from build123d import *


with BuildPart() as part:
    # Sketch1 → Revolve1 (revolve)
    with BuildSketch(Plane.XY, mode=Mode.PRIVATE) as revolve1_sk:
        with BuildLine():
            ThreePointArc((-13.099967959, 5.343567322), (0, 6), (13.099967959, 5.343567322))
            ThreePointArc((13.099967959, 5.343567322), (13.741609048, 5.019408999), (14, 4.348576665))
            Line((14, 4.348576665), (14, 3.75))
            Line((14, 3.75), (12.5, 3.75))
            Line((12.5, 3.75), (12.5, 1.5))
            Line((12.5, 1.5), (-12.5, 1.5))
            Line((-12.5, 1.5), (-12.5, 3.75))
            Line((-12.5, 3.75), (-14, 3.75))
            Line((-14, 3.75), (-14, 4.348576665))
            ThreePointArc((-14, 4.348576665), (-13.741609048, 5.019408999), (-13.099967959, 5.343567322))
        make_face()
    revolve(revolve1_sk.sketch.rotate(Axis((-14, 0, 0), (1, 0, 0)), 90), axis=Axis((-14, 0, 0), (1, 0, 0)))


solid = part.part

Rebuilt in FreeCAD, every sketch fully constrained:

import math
import FreeCAD as App
import Part
import Sketcher

V = App.Vector
Q = App.Units.Quantity

doc = App.newDocument("Part")
body = doc.addObject("PartDesign::Body", "Body")

sketch1 = body.newObject("Sketcher::SketchObject", "Sketch")
sketch1.AttachmentSupport = (doc.getObject("XY_Plane"), [""])
sketch1.MapMode = "FlatFace"
sketch1.addGeometry([
    Part.ArcOfCircle(Part.Circle(V(0, -125.041667, 0), V(0, 0, 1), 131.041667), math.radians(84.262675), math.radians(95.737325)),
    Part.ArcOfCircle(Part.Circle(V(-13, 4.348577, 0), V(0, 0, 1), 1), math.radians(95.737325), math.radians(180)),
    Part.LineSegment(V(-14, 4.348577, 0), V(-14, 3.75, 0)),
    Part.LineSegment(V(-14, 3.75, 0), V(-12.5, 3.75, 0)),
    Part.LineSegment(V(-12.5, 3.75, 0), V(-12.5, 1.5, 0)),
    Part.LineSegment(V(-12.5, 1.5, 0), V(12.5, 1.5, 0)),
    Part.LineSegment(V(12.5, 1.5, 0), V(12.5, 3.75, 0)),
    Part.LineSegment(V(12.5, 3.75, 0), V(14, 3.75, 0)),
    Part.LineSegment(V(14, 3.75, 0), V(14, 4.348577, 0)),
    Part.ArcOfCircle(Part.Circle(V(13, 4.348577, 0), V(0, 0, 1), 1), math.radians(0), math.radians(84.262675)),
], False)
sketch1.addConstraint([
    Sketcher.Constraint("Tangent", 0, 2, 1, 1),
    Sketcher.Constraint("Tangent", 1, 2, 2, 1),
    Sketcher.Constraint("Coincident", 2, 2, 3, 1),
    Sketcher.Constraint("Coincident", 3, 2, 4, 1),
    Sketcher.Constraint("Coincident", 4, 2, 5, 1),
    Sketcher.Constraint("Coincident", 5, 2, 6, 1),
    Sketcher.Constraint("Coincident", 6, 2, 7, 1),
    Sketcher.Constraint("Coincident", 7, 2, 8, 1),
    Sketcher.Constraint("Tangent", 8, 2, 9, 1),
    Sketcher.Constraint("Tangent", 9, 2, 0, 1),
    Sketcher.Constraint("Vertical", 2),
    Sketcher.Constraint("Horizontal", 3),
    Sketcher.Constraint("Vertical", 4),
    Sketcher.Constraint("Horizontal", 5),
    Sketcher.Constraint("Vertical", 6),
    Sketcher.Constraint("Horizontal", 7),
    Sketcher.Constraint("Vertical", 8),
    Sketcher.Constraint("Equal", 1, 9),
    Sketcher.Constraint("Symmetric", 1, 3, 9, 3, -2),
    Sketcher.Constraint("Symmetric", 3, 2, 6, 2, -2),
    Sketcher.Constraint("Radius", 1, Q("1 mm")),
    Sketcher.Constraint("DistanceX", 5, 1, 5, 2, Q("25 mm")),
    Sketcher.Constraint("DistanceX", 3, 1, 3, 2, Q("1.5 mm")),
    Sketcher.Constraint("DistanceY", 4, 2, 4, 1, Q("2.25 mm")),
    Sketcher.Constraint("DistanceY", -1, 1, 4, 2, Q("1.5 mm")),
    Sketcher.Constraint("Radius", 0, Q("131.041667 mm")),
    Sketcher.Constraint("DistanceY", 2, 2, 2, 1, Q("0.598577 mm")),
])
revolution = body.newObject("PartDesign::Revolution", "Revolution")
revolution.Profile = sketch1
revolution.ReferenceAxis = (sketch1, ["H_Axis"])
revolution.Angle = 360

doc.recompute()
